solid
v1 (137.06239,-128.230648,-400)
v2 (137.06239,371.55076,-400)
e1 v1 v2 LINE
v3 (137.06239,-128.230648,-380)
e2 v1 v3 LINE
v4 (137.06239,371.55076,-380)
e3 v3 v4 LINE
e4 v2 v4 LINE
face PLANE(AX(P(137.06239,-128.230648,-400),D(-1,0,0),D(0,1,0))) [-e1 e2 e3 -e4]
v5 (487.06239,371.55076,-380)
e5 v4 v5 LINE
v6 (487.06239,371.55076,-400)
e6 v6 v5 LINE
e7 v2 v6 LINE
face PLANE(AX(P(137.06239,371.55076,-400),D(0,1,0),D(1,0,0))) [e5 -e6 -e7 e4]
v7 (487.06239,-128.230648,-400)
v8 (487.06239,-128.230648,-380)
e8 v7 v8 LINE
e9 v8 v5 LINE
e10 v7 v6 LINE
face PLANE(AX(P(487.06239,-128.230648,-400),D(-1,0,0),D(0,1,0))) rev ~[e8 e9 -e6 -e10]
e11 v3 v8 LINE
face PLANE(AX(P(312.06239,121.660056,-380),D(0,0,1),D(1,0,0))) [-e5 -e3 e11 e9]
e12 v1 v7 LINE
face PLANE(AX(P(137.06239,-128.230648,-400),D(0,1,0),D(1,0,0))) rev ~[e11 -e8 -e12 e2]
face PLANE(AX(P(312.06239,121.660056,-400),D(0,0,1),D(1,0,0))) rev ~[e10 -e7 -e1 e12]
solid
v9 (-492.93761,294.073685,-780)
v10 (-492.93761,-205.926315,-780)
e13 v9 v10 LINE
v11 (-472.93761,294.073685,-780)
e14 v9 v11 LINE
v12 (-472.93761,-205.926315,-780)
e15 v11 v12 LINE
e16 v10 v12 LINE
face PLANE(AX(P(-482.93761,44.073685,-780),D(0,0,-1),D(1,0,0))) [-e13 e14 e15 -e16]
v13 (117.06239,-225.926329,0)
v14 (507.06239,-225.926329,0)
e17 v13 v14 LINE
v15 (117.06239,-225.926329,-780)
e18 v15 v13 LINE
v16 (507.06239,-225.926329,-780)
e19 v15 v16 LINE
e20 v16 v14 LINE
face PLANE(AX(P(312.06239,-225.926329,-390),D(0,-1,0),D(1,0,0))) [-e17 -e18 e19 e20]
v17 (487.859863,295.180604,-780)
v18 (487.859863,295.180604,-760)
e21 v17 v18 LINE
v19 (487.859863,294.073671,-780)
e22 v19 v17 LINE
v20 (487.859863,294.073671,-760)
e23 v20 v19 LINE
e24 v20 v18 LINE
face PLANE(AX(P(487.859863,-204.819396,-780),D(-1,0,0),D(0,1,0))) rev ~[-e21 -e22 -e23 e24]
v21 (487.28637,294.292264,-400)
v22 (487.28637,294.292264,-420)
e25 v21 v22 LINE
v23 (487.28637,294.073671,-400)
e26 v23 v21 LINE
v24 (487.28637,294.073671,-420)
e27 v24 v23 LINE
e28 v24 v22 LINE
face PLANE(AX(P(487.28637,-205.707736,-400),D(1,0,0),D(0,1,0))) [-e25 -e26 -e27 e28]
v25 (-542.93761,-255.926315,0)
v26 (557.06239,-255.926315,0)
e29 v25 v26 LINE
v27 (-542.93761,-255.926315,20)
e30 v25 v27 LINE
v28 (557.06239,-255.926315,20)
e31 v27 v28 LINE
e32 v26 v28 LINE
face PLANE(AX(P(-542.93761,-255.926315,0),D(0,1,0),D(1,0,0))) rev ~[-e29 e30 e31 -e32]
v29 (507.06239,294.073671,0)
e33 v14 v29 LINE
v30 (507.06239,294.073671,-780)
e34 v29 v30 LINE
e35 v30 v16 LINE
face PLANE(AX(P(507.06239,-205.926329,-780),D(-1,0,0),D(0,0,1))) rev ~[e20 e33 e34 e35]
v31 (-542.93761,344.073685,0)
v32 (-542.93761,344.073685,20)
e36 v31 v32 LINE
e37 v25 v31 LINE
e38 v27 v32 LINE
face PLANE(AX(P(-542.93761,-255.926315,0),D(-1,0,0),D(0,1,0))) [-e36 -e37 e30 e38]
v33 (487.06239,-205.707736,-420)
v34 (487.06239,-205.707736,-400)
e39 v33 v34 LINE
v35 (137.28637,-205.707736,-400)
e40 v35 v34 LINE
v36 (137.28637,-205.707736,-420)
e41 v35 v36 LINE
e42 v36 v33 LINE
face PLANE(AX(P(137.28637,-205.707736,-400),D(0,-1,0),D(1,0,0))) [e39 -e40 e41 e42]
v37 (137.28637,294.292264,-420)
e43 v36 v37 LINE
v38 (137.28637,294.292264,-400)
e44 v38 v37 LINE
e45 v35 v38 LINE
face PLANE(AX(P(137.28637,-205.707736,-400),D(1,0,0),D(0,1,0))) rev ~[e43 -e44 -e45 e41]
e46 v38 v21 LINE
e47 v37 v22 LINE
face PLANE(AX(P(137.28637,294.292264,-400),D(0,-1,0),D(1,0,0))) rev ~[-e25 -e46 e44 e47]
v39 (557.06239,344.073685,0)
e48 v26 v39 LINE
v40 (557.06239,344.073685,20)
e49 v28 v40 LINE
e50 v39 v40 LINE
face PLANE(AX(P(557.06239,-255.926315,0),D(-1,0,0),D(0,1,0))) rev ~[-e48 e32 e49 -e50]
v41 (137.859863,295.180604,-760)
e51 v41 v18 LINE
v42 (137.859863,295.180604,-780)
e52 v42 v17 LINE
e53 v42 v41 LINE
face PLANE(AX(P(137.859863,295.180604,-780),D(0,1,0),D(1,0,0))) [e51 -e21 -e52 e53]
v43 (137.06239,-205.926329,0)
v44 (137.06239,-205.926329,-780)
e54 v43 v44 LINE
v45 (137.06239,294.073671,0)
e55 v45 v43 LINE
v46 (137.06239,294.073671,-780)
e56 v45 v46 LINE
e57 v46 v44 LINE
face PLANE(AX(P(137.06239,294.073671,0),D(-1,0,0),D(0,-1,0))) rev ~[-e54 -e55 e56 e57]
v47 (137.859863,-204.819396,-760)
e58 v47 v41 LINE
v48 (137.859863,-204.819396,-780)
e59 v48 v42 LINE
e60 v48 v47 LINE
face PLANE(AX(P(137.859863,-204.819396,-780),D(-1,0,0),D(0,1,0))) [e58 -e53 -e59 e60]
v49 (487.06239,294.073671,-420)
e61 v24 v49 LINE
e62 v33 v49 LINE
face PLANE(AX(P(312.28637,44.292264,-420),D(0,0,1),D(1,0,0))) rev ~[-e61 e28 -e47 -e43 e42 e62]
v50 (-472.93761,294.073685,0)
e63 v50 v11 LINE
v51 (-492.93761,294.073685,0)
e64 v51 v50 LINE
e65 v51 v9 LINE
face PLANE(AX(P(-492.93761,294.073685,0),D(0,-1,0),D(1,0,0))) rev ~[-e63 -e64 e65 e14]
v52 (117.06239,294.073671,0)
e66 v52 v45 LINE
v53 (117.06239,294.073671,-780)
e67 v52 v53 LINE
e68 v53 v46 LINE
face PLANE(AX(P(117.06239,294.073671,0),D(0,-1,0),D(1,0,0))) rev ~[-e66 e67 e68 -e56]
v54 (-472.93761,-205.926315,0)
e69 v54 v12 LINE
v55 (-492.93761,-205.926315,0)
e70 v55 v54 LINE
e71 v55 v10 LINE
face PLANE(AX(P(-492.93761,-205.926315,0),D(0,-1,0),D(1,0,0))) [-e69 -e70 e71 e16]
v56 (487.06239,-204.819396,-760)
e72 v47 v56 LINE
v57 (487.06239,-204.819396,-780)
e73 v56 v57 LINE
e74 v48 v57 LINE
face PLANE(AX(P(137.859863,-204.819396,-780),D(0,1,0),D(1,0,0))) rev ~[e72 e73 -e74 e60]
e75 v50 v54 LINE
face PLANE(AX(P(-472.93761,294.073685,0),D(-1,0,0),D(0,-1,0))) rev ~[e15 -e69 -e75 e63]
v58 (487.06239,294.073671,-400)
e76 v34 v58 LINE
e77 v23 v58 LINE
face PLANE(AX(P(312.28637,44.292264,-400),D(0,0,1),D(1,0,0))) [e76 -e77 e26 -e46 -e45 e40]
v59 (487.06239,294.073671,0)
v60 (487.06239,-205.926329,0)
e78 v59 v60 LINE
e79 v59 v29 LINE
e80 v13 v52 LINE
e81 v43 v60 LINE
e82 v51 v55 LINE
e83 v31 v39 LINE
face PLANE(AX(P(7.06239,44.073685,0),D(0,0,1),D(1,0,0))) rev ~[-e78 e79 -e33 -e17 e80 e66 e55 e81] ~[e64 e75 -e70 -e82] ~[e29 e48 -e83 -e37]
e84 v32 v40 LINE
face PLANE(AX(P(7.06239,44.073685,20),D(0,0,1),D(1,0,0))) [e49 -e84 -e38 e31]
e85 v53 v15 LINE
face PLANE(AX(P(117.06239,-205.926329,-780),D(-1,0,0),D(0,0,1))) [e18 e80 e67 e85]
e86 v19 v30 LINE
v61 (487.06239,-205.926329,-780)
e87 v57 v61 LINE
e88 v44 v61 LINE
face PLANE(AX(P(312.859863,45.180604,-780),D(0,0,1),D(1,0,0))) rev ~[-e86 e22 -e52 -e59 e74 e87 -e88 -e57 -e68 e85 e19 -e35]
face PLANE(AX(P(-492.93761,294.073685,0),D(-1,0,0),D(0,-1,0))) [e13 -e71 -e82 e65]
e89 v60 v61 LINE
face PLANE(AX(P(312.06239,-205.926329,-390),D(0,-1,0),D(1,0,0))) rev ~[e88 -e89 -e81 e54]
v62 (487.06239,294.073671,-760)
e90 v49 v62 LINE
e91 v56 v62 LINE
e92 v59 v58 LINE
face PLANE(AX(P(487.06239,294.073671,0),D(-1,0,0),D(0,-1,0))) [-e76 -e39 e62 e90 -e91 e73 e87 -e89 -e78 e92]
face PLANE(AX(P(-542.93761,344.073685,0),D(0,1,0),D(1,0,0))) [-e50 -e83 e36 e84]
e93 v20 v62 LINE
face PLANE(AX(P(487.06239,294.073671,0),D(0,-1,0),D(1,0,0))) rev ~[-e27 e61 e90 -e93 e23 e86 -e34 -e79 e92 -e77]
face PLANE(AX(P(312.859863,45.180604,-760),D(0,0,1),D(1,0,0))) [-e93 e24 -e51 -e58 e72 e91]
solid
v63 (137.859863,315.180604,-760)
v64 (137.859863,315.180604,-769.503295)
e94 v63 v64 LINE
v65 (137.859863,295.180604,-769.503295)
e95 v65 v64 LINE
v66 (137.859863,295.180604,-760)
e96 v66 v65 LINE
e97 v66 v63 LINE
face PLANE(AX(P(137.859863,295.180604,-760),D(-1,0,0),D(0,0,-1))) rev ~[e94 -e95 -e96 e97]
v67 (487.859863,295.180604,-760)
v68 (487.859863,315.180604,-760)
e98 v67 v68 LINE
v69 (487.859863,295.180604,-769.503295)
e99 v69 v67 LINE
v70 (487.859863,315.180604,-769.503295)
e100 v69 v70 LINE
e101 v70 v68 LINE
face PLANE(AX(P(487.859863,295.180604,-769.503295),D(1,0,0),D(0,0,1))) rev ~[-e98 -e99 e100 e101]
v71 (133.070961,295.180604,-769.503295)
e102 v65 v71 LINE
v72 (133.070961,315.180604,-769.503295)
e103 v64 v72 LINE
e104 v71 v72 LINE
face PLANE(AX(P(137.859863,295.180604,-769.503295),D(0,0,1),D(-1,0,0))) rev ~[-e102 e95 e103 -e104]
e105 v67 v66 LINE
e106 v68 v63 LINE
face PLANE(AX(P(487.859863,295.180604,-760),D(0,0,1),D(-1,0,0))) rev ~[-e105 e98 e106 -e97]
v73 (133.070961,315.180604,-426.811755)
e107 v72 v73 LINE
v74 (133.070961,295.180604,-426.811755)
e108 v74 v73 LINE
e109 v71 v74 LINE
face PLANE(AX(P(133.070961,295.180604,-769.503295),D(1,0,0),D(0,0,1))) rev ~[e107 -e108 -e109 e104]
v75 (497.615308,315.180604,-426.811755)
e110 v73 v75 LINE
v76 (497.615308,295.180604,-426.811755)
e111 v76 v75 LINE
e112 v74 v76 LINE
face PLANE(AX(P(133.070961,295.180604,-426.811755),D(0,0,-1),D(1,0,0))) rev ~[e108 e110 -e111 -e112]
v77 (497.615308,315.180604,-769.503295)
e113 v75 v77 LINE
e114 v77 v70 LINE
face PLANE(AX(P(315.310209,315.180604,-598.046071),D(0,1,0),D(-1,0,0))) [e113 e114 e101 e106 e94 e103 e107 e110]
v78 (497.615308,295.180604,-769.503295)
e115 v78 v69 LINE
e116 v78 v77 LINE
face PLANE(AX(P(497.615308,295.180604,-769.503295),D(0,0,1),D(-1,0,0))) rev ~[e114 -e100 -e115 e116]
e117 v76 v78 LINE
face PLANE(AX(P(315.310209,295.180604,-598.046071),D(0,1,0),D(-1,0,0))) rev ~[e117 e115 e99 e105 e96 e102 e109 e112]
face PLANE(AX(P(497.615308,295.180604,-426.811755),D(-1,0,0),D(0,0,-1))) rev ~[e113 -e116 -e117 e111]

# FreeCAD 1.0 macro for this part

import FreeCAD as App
import Part
import Sketcher

V = App.Vector


def add_polygon(sketch, points):
    """Adds a closed chain of lines whose ends are joined by coincident constraints."""
    first, n = sketch.GeometryCount, len(points)
    for a, b in zip(points, points[1:] + points[:1]):
        sketch.addGeometry(Part.LineSegment(App.Vector(*a, 0), App.Vector(*b, 0)), False)
    for i in range(n):
        sketch.addConstraint(Sketcher.Constraint("Coincident", first + i, 2, first + (i + 1) % n, 1))

doc = App.newDocument("Part")
body = doc.addObject("PartDesign::Body", "Body")

sketch1 = body.newObject("Sketcher::SketchObject", "Sketch")
sketch1.AttachmentSupport = (doc.getObject("XY_Plane"), [""])
sketch1.MapMode = "FlatFace"
add_polygon(sketch1, [(-543, 344), (-543, -256), (557, -256), (557, 344)])
sketch1.addConstraint([
    Sketcher.Constraint("Vertical", 0),
    Sketcher.Constraint("Horizontal", 1),
    Sketcher.Constraint("Vertical", 2),
    Sketcher.Constraint("Horizontal", 3),
    Sketcher.Constraint("DistanceX", 1, 1, 1, 2, 1100.0),
    Sketcher.Constraint("DistanceY", 0, 2, 0, 1, 600.0),
    Sketcher.Constraint("DistanceX", 0, 2, -1, 1, 542.93761),
    Sketcher.Constraint("DistanceY", 0, 2, -1, 1, 255.926315),
])
pad1 = body.newObject("PartDesign::Pad", "Pad")
pad1.Profile = sketch1
pad1.Length = 20

sketch2 = body.newObject("Sketcher::SketchObject", "Sketch001")
sketch2.AttachmentSupport = (doc.getObject("XY_Plane"), [""])
sketch2.MapMode = "FlatFace"
add_polygon(sketch2, [(-493, -206), (-493, 294), (-473, 294), (-473, -206)])
add_polygon(sketch2, [(487, -206), (487, 294), (507, 294), (507, -206)])
add_polygon(sketch2, [(117, -206), (117, 294), (137, 294), (137, -206)])
sketch2.addConstraint([
    Sketcher.Constraint("Vertical", 0),
    Sketcher.Constraint("Horizontal", 1),
    Sketcher.Constraint("Vertical", 2),
    Sketcher.Constraint("Horizontal", 3),
    Sketcher.Constraint("Vertical", 4),
    Sketcher.Constraint("Horizontal", 5),
    Sketcher.Constraint("Vertical", 6),
    Sketcher.Constraint("Horizontal", 7),
    Sketcher.Constraint("Vertical", 8),
    Sketcher.Constraint("Horizontal", 9),
    Sketcher.Constraint("Vertical", 10),
    Sketcher.Constraint("Horizontal", 11),
    Sketcher.Constraint("Horizontal", 5, 2, 8, 2),
    Sketcher.Constraint("Horizontal", 7, 2, 10, 2),
    Sketcher.Constraint("Equal", 3, 5),
    Sketcher.Constraint("Equal", 7, 9),
    Sketcher.Constraint("Equal", 2, 4),
    Sketcher.Constraint("DistanceX", 1, 1, 1, 2, 20.0),
    Sketcher.Constraint("DistanceY", 0, 1, 0, 2, 500.0),
    Sketcher.Constraint("DistanceX", 1, 2, 4, 2, 960.0),
    Sketcher.Constraint("DistanceX", 8, 2, 4, 2, 370.0),
    Sketcher.Constraint("DistanceX", 0, 2, -1, 1, 492.93761),
    Sketcher.Constraint("DistanceY", -1, 1, 4, 2, 294.073671),
    Sketcher.Constraint("DistanceY", -1, 1, 0, 2, 294.073685),
])
pad2 = body.newObject("PartDesign::Pad", "Pad001")
pad2.Profile = sketch2
pad2.Length = 780
pad2.Reversed = True

sketch3 = body.newObject("Sketcher::SketchObject", "Sketch002")
sketch3.AttachmentSupport = (doc.getObject("XZ_Plane"), [""])
sketch3.MapMode = "FlatFace"
sketch3.AttachmentOffset = App.Placement(V(0, 0, 205.926329), App.Rotation())
add_polygon(sketch3, [(117, 0), (117, -780), (507, -780), (507, 0)])
sketch3.addConstraint([
    Sketcher.Constraint("Vertical", 0),
    Sketcher.Constraint("Horizontal", 1),
    Sketcher.Constraint("Vertical", 2),
    Sketcher.Constraint("Horizontal", 3),
    Sketcher.Constraint("PointOnObject", 2, 2, -1),
    Sketcher.Constraint("DistanceX", 1, 1, 1, 2, 390.0),
    Sketcher.Constraint("DistanceY", 0, 2, 0, 1, 780.0),
    Sketcher.Constraint("DistanceX", -1, 1, 0, 2, 117.06239),
])
pad3 = body.newObject("PartDesign::Pad", "Pad002")
pad3.Profile = sketch3
pad3.Length = 20

sketch4 = body.newObject("Sketcher::SketchObject", "Sketch003")
sketch4.AttachmentSupport = (doc.getObject("XY_Plane"), [""])
sketch4.MapMode = "FlatFace"
sketch4.AttachmentOffset = App.Placement(V(0, 0, -400), App.Rotation())
add_polygon(sketch4, [(137, 294), (137, -206), (487, -206), (487, 294)])
sketch4.addConstraint([
    Sketcher.Constraint("Vertical", 0),
    Sketcher.Constraint("Horizontal", 1),
    Sketcher.Constraint("Vertical", 2),
    Sketcher.Constraint("Horizontal", 3),
    Sketcher.Constraint("DistanceX", 1, 1, 1, 2, 350.0),
    Sketcher.Constraint("DistanceY", 0, 2, 0, 1, 500.0),
    Sketcher.Constraint("DistanceX", -1, 1, 0, 2, 137.28637),
    Sketcher.Constraint("DistanceY", 0, 2, -1, 1, 205.707736),
])
pad4 = body.newObject("PartDesign::Pad", "Pad003")
pad4.Profile = sketch4
pad4.Length = 20
pad4.Reversed = True

sketch5 = body.newObject("Sketcher::SketchObject", "Sketch004")
sketch5.AttachmentSupport = (doc.getObject("XY_Plane"), [""])
sketch5.MapMode = "FlatFace"
sketch5.AttachmentOffset = App.Placement(V(0, 0, -780), App.Rotation())
add_polygon(sketch5, [(138, 295), (138, -205), (488, -205), (488, 295)])
sketch5.addConstraint([
    Sketcher.Constraint("Vertical", 0),
    Sketcher.Constraint("Horizontal", 1),
    Sketcher.Constraint("Vertical", 2),
    Sketcher.Constraint("Horizontal", 3),
    Sketcher.Constraint("DistanceX", 1, 1, 1, 2, 350.0),
    Sketcher.Constraint("DistanceY", 0, 2, 0, 1, 500.0),
    Sketcher.Constraint("DistanceX", -1, 1, 0, 2, 137.859863),
    Sketcher.Constraint("DistanceY", 0, 2, -1, 1, 204.819396),
])
pad5 = body.newObject("PartDesign::Pad", "Pad004")
pad5.Profile = sketch5
pad5.Length = 20
body2 = doc.addObject("PartDesign::Body", "Body001")

sketch6 = body2.newObject("Sketcher::SketchObject", "Sketch005")
sketch6.AttachmentSupport = (doc.getObject("XY_Plane001"), [""])
sketch6.MapMode = "FlatFace"
sketch6.AttachmentOffset = App.Placement(V(0, 0, -400), App.Rotation())
add_polygon(sketch6, [(137, 372), (137, -128), (487, -128), (487, 372)])
sketch6.addConstraint([
    Sketcher.Constraint("Vertical", 0),
    Sketcher.Constraint("Horizontal", 1),
    Sketcher.Constraint("Vertical", 2),
    Sketcher.Constraint("Horizontal", 3),
    Sketcher.Constraint("DistanceX", 1, 1, 1, 2, 350.0),
    Sketcher.Constraint("DistanceY", 0, 2, 0, 1, 499.781407),
    Sketcher.Constraint("DistanceX", -1, 1, 0, 2, 137.06239),
    Sketcher.Constraint("DistanceY", -1, 1, 2, 2, 371.55076),
])
pad6 = body2.newObject("PartDesign::Pad", "Pad005")
pad6.Profile = sketch6
pad6.Length = 20
body3 = doc.addObject("PartDesign::Body", "Body002")

sketch7 = body3.newObject("Sketcher::SketchObject", "Sketch006")
sketch7.AttachmentSupport = (doc.getObject("XZ_Plane002"), [""])
sketch7.MapMode = "FlatFace"
sketch7.AttachmentOffset = App.Placement(V(0, 0, -295.180604), App.Rotation())
add_polygon(sketch7, [(497.6, -426.8), (497.6, -769.5), (487.9, -769.5), (487.9, -760), (137.9, -760), (137.9, -769.5), (133.1, -769.5), (133.1, -426.8)])
sketch7.addConstraint([
    Sketcher.Constraint("Vertical", 0),
    Sketcher.Constraint("Horizontal", 1),
    Sketcher.Constraint("Vertical", 2),
    Sketcher.Constraint("Horizontal", 3),
    Sketcher.Constraint("Vertical", 4),
    Sketcher.Constraint("Horizontal", 5),
    Sketcher.Constraint("Vertical", 6),
    Sketcher.Constraint("Horizontal", 7),
    Sketcher.Constraint("Horizontal", 1, 2, 4, 2),
    Sketcher.Constraint("DistanceX", 3, 2, 3, 1, 350.0),
    Sketcher.Constraint("DistanceY", 2, 2, -1, 1, 760.0),
    Sketcher.Constraint("DistanceX", 5, 2, 5, 1, 4.788902),
    Sketcher.Constraint("DistanceY", 0, 2, 0, 1, 342.69154),
    Sketcher.Constraint("DistanceX", 1, 2, 1, 1, 9.755445),
    Sketcher.Constraint("DistanceY", 2, 1, 2, 2, 9.503295),
    Sketcher.Constraint("DistanceX", -1, 1, 0, 2, 497.615308),
])
pad7 = body3.newObject("PartDesign::Pad", "Pad006")
pad7.Profile = sketch7
pad7.Length = 20
pad7.Reversed = True

doc.recompute()
